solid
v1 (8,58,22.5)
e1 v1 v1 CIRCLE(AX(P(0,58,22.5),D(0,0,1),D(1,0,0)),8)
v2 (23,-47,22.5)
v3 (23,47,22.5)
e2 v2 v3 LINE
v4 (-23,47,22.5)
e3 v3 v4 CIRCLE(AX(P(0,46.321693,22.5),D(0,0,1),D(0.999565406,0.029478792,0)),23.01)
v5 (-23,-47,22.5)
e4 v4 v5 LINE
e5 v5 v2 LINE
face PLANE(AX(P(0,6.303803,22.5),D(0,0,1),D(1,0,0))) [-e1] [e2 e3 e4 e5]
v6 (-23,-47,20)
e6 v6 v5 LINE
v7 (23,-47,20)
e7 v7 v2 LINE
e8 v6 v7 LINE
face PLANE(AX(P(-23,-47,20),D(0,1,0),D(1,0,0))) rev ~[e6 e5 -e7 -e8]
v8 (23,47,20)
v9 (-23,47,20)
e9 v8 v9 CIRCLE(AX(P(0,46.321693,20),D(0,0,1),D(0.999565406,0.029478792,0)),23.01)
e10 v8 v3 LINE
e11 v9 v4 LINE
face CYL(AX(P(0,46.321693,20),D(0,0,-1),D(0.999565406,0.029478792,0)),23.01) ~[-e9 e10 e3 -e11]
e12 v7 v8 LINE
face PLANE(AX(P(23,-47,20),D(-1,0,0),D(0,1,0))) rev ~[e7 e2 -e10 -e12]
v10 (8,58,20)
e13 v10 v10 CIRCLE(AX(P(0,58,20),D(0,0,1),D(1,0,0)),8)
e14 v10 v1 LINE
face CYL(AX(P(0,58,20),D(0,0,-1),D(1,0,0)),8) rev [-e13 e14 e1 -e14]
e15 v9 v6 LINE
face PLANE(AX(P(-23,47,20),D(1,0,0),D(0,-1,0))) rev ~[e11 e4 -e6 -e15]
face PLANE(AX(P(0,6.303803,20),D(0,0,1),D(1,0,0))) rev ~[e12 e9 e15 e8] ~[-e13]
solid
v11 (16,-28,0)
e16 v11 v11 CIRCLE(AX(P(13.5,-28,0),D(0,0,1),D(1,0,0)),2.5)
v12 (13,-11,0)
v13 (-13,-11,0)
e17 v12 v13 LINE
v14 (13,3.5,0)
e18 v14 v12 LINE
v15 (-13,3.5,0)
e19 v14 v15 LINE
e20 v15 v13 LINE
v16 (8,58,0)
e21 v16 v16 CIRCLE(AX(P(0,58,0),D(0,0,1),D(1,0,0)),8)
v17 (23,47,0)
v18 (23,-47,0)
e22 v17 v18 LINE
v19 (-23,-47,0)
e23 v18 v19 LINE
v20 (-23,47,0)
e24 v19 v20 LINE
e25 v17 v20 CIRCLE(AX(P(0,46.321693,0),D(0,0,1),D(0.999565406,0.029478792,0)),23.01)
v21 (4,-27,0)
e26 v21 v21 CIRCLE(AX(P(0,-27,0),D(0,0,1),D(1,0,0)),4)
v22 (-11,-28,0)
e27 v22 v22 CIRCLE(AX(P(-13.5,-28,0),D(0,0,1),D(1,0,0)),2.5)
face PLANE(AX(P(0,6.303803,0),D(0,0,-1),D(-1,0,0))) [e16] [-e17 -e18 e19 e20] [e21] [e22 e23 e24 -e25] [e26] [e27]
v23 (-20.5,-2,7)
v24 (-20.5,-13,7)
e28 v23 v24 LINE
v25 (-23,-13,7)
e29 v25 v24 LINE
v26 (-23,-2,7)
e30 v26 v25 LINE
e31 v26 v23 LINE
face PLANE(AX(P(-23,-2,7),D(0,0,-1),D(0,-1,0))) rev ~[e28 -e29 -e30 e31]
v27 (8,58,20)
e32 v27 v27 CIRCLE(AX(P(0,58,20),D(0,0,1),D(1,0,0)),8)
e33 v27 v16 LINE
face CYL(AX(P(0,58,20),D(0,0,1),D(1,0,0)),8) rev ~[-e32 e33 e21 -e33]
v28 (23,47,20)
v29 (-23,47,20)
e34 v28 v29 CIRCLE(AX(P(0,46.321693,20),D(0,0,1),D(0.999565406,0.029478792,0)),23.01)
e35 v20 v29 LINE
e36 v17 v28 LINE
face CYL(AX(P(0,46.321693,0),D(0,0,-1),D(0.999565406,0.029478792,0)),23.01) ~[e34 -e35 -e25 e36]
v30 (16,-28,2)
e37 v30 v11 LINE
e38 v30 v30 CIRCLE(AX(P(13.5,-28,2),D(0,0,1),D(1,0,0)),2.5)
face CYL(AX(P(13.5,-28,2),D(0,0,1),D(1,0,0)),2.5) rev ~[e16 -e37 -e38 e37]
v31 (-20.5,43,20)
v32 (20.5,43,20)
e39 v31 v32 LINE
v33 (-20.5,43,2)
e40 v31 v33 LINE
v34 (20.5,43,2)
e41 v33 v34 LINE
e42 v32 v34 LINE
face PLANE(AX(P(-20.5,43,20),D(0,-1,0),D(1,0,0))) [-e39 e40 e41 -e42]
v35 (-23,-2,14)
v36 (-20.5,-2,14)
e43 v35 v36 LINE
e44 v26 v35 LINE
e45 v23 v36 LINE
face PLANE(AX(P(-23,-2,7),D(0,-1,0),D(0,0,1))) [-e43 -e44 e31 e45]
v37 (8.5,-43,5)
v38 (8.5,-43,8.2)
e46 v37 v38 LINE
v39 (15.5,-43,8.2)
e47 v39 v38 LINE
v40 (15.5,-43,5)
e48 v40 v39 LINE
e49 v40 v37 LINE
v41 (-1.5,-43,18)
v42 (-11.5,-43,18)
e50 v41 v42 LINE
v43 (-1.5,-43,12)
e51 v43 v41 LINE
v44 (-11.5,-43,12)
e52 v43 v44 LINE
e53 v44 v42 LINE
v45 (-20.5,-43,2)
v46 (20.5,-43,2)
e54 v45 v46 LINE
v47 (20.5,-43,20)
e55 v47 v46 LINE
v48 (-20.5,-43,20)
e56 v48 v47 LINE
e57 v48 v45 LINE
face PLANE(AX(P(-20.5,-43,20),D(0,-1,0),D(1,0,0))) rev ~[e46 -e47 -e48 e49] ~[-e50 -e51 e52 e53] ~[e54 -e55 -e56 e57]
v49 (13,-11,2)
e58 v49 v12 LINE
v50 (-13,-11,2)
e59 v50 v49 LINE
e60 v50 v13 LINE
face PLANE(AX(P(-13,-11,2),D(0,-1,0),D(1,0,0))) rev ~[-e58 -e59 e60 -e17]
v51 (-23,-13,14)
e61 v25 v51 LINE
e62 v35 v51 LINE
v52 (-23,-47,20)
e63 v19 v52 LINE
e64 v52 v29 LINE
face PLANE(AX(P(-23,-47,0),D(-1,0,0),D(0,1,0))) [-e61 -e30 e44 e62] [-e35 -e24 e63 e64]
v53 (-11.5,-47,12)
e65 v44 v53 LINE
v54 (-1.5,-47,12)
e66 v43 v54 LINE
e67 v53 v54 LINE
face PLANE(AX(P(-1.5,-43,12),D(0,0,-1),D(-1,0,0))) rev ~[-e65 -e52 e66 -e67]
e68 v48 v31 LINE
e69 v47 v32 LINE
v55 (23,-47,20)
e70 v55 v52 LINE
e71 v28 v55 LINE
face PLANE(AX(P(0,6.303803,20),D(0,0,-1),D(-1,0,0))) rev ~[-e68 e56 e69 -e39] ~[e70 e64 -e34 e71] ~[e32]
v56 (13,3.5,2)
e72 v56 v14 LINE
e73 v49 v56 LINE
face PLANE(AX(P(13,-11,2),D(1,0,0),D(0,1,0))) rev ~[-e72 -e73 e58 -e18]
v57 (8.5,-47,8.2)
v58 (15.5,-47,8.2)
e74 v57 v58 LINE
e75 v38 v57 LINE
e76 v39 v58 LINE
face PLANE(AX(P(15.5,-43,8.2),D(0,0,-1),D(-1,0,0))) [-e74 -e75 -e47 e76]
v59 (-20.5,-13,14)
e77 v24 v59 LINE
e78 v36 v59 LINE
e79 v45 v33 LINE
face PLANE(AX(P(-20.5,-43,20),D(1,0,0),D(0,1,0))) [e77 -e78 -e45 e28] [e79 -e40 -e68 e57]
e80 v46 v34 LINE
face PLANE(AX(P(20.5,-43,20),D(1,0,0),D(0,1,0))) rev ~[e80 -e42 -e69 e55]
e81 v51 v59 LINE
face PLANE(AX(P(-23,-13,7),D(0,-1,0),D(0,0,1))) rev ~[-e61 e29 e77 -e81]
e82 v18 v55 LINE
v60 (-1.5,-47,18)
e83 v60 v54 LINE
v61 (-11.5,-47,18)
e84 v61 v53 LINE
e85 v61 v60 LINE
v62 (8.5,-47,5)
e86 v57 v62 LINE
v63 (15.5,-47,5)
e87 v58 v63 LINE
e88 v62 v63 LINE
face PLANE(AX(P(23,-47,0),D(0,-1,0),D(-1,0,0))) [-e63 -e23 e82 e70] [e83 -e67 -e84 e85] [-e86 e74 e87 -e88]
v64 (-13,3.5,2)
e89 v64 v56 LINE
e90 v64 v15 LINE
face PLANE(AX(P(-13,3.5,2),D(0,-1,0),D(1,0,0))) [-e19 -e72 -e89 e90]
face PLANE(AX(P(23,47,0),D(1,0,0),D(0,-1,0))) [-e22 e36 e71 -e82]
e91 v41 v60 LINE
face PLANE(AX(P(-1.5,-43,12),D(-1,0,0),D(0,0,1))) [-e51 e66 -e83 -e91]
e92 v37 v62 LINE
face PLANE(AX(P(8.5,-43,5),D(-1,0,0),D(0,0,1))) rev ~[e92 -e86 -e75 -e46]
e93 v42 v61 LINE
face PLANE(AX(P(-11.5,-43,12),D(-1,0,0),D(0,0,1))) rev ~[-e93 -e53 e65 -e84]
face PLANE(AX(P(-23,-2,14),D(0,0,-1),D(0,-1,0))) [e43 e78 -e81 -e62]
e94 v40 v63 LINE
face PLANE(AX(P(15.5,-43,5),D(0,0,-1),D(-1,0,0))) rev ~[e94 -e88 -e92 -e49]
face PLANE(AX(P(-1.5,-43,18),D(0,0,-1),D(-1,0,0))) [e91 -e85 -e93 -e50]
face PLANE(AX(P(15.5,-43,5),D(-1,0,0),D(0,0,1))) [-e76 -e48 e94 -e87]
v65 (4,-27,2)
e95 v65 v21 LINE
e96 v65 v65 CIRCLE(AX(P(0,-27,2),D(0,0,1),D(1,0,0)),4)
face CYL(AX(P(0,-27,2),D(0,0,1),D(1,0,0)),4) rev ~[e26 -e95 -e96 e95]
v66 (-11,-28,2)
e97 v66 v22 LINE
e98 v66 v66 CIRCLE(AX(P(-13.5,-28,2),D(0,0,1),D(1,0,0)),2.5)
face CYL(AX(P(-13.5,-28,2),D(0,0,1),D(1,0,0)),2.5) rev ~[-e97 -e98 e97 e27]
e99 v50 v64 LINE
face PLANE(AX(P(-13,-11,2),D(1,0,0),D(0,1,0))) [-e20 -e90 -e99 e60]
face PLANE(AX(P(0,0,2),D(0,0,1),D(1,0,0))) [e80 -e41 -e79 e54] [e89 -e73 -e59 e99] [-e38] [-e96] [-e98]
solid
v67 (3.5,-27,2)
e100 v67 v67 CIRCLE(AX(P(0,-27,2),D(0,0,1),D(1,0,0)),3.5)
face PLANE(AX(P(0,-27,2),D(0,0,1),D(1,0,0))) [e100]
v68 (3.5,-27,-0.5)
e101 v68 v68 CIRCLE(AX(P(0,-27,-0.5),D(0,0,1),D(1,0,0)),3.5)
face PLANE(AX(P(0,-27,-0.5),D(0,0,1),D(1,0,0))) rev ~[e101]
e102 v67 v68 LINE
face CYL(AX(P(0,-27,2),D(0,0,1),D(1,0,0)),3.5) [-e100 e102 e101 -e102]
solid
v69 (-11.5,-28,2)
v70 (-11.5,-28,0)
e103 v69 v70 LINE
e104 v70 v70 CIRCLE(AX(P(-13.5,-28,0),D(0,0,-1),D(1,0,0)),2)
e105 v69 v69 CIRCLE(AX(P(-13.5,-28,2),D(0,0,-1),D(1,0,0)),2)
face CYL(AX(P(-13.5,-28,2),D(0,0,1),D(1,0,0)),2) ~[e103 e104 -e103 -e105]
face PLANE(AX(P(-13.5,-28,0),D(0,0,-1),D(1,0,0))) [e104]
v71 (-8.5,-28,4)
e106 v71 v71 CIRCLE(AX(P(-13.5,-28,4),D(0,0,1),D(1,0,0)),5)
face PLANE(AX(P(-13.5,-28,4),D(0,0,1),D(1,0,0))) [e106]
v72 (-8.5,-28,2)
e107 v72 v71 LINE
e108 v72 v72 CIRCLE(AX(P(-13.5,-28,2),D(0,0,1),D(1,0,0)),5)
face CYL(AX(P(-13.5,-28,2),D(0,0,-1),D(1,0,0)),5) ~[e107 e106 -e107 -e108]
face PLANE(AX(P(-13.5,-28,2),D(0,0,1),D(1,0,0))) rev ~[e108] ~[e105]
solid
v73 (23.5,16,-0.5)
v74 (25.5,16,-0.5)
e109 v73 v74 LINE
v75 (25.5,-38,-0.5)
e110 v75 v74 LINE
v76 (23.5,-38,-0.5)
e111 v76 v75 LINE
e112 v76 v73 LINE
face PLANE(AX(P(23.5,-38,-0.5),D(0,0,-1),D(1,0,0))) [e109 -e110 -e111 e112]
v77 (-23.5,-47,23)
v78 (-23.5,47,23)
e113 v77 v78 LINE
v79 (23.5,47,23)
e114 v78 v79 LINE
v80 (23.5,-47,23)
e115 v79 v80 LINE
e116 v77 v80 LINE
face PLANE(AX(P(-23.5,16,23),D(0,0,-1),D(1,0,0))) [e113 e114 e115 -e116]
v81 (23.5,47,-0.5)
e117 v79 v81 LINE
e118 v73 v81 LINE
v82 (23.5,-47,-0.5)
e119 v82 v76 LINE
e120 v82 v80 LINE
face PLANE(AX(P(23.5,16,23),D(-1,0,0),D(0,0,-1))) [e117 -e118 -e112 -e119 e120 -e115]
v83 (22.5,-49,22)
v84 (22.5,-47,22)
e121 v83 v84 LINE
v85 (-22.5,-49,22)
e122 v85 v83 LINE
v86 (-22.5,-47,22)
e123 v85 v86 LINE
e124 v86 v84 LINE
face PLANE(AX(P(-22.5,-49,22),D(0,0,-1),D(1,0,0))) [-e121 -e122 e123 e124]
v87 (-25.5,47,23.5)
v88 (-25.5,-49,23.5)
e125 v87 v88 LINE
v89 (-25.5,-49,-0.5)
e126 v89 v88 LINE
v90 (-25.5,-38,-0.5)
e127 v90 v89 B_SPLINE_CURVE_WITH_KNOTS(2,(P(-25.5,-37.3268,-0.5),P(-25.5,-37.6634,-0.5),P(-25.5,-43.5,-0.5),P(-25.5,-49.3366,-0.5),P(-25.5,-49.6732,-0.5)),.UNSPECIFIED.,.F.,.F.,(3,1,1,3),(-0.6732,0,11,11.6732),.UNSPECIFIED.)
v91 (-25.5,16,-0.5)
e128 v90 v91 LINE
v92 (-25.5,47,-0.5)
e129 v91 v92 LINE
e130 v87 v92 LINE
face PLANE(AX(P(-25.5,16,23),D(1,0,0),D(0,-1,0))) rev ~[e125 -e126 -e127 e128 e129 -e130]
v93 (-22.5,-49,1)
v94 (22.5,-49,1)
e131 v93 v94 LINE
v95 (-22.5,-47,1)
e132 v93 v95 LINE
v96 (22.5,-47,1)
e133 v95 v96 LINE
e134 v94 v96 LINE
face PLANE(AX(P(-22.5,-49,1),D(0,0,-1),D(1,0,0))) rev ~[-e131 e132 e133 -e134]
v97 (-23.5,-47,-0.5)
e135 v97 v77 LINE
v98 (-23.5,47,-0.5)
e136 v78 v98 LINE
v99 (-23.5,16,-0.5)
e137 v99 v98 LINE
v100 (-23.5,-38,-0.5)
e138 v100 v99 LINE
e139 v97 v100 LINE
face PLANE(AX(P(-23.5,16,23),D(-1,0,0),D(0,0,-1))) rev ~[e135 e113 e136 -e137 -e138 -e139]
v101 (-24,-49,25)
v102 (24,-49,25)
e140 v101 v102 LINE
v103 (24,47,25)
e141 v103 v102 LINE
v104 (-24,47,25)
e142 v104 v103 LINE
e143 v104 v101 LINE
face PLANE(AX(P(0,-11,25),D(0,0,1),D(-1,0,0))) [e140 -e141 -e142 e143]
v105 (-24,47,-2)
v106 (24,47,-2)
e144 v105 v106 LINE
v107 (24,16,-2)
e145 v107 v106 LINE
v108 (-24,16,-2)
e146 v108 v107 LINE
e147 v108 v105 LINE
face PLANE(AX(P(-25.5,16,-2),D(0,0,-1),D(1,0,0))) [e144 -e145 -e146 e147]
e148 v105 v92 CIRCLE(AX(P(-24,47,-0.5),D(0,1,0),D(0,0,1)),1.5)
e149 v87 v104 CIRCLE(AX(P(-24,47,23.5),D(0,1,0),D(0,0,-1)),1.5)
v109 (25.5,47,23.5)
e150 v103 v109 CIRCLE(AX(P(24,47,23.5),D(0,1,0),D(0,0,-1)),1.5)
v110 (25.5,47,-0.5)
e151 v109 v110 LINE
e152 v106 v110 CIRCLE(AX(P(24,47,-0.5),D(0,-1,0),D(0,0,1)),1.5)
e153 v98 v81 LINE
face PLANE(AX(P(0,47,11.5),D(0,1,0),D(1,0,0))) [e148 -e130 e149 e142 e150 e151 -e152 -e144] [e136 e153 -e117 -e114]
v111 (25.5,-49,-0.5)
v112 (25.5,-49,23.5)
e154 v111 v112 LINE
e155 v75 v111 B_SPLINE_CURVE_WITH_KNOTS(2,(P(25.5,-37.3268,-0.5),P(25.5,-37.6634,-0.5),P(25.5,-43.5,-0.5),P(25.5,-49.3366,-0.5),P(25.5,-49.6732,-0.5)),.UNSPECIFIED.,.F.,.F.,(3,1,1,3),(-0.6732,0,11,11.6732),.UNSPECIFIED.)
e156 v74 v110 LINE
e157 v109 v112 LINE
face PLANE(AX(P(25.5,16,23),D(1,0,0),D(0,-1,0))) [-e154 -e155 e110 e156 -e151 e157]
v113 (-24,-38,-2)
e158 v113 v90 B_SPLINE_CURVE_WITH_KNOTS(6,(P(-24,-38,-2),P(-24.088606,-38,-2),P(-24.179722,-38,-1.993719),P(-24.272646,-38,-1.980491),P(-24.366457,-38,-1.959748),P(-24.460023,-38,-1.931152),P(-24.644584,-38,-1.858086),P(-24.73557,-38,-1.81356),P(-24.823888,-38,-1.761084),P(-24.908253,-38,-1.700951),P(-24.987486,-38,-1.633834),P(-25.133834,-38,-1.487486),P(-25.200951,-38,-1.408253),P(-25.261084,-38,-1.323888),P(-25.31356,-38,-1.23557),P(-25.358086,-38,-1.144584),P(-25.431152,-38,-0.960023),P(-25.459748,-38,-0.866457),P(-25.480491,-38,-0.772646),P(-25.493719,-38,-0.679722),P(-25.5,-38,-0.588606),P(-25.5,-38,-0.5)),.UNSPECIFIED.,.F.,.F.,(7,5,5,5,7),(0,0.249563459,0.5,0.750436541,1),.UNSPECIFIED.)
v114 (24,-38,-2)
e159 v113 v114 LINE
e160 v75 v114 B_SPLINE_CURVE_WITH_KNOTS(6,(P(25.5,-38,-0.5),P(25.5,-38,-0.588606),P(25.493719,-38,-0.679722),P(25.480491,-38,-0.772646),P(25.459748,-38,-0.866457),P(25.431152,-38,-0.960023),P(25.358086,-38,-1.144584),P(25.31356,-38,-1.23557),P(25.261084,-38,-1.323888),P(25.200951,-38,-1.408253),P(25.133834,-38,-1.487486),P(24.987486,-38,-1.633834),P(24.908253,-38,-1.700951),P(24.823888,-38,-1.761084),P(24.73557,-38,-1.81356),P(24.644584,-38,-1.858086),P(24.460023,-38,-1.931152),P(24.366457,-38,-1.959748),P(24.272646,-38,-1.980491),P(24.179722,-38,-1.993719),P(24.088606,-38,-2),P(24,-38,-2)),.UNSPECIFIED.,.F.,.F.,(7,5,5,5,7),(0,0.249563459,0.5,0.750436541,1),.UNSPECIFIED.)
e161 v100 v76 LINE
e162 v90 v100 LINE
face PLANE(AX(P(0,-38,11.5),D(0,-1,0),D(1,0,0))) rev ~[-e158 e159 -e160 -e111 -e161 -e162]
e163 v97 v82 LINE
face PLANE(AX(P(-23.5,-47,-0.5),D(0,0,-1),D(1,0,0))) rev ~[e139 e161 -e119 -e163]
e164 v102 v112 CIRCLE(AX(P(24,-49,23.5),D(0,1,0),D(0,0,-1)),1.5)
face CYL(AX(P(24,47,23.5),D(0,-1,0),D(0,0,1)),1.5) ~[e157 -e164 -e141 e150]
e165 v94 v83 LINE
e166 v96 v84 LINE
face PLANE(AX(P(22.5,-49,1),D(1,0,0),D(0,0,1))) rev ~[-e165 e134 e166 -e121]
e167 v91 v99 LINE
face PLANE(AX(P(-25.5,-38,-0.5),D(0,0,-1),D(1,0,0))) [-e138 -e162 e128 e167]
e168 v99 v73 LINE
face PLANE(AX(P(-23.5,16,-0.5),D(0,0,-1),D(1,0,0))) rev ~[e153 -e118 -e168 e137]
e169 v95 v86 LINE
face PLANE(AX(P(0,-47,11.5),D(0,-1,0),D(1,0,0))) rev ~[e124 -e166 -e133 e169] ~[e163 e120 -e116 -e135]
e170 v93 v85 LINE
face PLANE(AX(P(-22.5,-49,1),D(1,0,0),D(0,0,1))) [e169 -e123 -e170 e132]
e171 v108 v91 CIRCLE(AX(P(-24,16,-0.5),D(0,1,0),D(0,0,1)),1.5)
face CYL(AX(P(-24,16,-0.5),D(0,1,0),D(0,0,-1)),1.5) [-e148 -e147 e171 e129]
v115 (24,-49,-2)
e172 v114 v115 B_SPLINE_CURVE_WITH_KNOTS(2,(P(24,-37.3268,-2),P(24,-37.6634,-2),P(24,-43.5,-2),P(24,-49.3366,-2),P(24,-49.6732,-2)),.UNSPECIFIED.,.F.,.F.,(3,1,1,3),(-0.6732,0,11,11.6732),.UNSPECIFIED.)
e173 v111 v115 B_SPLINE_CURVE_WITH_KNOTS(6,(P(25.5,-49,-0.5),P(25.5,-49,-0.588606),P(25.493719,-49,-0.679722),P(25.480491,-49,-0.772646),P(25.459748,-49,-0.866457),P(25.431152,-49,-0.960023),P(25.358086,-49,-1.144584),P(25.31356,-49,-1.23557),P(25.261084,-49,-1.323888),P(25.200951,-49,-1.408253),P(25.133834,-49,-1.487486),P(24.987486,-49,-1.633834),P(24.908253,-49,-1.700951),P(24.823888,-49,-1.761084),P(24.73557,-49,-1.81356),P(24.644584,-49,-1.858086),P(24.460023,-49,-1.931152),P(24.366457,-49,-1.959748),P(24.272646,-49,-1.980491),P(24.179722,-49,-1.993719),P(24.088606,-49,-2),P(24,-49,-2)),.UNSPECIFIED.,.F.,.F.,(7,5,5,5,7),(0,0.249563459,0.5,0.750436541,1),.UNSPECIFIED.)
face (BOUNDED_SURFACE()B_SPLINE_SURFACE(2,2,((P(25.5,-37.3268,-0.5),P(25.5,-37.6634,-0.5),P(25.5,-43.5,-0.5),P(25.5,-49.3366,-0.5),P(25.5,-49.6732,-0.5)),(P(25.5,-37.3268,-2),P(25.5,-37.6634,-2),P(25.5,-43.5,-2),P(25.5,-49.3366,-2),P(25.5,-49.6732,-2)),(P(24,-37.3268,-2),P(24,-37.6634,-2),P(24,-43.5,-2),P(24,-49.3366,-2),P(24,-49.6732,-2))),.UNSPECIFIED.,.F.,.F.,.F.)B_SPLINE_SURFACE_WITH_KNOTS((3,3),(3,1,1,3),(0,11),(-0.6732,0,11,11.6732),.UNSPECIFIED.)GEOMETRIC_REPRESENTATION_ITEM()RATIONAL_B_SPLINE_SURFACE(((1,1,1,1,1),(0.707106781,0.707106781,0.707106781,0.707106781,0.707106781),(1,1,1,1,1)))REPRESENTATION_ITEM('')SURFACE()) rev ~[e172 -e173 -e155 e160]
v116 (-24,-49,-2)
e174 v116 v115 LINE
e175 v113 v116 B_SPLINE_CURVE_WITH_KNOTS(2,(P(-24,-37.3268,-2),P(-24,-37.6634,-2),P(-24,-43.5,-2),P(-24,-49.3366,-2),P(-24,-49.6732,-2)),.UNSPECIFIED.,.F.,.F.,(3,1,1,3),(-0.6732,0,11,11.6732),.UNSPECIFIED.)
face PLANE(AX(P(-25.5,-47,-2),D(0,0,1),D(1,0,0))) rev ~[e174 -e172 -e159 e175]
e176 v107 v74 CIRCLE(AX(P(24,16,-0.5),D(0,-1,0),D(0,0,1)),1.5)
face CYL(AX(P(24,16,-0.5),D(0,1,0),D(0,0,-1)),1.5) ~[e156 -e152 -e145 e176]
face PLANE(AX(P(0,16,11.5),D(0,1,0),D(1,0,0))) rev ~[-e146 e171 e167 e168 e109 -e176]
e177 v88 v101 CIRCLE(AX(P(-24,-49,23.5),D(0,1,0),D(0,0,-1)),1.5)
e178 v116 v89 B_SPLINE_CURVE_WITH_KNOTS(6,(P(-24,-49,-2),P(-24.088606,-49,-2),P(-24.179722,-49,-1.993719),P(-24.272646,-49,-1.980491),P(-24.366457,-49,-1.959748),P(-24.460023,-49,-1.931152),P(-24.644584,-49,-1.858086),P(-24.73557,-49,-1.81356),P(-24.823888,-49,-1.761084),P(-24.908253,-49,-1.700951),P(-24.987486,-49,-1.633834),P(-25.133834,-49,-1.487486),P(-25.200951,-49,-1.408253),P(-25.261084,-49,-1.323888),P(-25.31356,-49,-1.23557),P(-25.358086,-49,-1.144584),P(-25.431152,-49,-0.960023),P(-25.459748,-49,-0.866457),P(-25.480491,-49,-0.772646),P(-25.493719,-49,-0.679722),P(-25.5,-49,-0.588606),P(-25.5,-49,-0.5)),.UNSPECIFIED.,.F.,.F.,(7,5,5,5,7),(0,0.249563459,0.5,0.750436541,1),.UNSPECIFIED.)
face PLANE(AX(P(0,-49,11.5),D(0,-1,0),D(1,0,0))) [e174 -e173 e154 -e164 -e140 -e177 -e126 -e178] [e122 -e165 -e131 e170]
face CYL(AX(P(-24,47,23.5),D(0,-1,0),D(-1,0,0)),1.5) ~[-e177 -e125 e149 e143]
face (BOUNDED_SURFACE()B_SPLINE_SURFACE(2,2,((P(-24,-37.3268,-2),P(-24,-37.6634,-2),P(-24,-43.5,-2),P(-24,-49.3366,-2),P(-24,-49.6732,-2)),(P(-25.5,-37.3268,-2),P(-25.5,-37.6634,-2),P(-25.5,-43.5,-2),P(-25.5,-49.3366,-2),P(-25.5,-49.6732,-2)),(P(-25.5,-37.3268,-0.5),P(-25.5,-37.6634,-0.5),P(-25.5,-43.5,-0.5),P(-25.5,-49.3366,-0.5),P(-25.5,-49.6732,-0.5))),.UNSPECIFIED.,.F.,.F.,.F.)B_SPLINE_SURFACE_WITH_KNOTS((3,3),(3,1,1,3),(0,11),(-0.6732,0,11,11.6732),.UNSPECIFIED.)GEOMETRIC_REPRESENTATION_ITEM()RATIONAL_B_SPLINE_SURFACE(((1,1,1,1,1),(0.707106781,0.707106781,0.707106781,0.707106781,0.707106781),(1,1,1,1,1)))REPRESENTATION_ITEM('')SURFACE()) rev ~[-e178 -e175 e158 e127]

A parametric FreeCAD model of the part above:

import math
import FreeCAD as App
import Part
import Sketcher
Q = App.Units.Quantity


def edges_at(feature, points):
    """Names of the edges that pass closest to the given points."""
    edges = feature.Shape.Edges
    near = lambda p: min(range(len(edges)), key=lambda i: edges[i].distToShape(Part.Vertex(*p))[0])
    return sorted({f"Edge{near(p) + 1}" for p in points})


def add_polygon(sketch, points):
    """Adds a closed chain of lines whose ends are joined by coincident constraints."""
    first, n = sketch.GeometryCount, len(points)
    for a, b in zip(points, points[1:] + points[:1]):
        sketch.addGeometry(Part.LineSegment(App.Vector(*a, 0), App.Vector(*b, 0)), False)
    for i in range(n):
        sketch.addConstraint(Sketcher.Constraint("Coincident", first + i, 2, first + (i + 1) % n, 1))

doc = App.newDocument("Part")
body = doc.addObject("PartDesign::Body", "Body")

# Sketch on XY plane
sketch1 = doc.addObject("Sketcher::SketchObject", "Sketch")
body.addObject(sketch1)
sketch1.AttachmentSupport = (doc.XY_Plane, [""])
sketch1.MapMode = "FlatFace"
sketch1.addGeometry([
    Part.LineSegment(App.Vector(23, -47, 0), App.Vector(23, 47, 0)),
    Part.ArcOfCircle(Part.Circle(App.Vector(0, 46, 0), App.Vector(0, 0, 1), 23), math.radians(2), math.radians(178)),
    Part.LineSegment(App.Vector(-23, 47, 0), App.Vector(-23, -47, 0)),
    Part.LineSegment(App.Vector(-23, -47, 0), App.Vector(23, -47, 0)),
], False)
sketch1.addConstraint([
    Sketcher.Constraint("Coincident", 0, 2, 1, 1),
    Sketcher.Constraint("Coincident", 1, 2, 2, 1),
    Sketcher.Constraint("Coincident", 2, 2, 3, 1),
    Sketcher.Constraint("Coincident", 3, 2, 0, 1),
    Sketcher.Constraint("Vertical", 0),
    Sketcher.Constraint("Vertical", 2),
    Sketcher.Constraint("Horizontal", 3),
    Sketcher.Constraint("Symmetric", 0, 2, 2, 2, -1, 1),
    Sketcher.Constraint("PointOnObject", 1, 3, -2),
    Sketcher.Constraint("DistanceX", 3, 1, 3, 2, Q("46 mm")),
    Sketcher.Constraint("DistanceY", 0, 1, 0, 2, Q("94 mm")),
    Sketcher.Constraint("Radius", 1, Q("23.01 mm")),
])
pad1 = doc.addObject("PartDesign::Pad", "Pad")
body.addObject(pad1)
pad1.Profile = sketch1
pad1.Length = 20

# Sketch on XY plane
sketch2 = doc.addObject("Sketcher::SketchObject", "Sketch001")
body.addObject(sketch2)
sketch2.AttachmentSupport = (doc.XY_Plane, [""])
sketch2.MapMode = "FlatFace"
sketch2.AttachmentOffset = App.Placement(App.Vector(0, 0, 20), App.Rotation())
sketch2.addGeometry(Part.Circle(App.Vector(0, 58, 0), App.Vector(0, 0, 1), 8), False)
sketch2.addConstraint([
    Sketcher.Constraint("PointOnObject", 0, 3, -2),
    Sketcher.Constraint("Diameter", 0, Q("16 mm")),
    Sketcher.Constraint("DistanceY", -1, 1, 0, 3, Q("58 mm")),
])
pocket1 = doc.addObject("PartDesign::Pocket", "Pocket")
body.addObject(pocket1)
pocket1.Profile = sketch2
pocket1.Type = "ThroughAll"

# Sketch on XY plane
sketch3 = doc.addObject("Sketcher::SketchObject", "Sketch002")
body.addObject(sketch3)
sketch3.AttachmentSupport = (doc.XY_Plane, [""])
sketch3.MapMode = "FlatFace"
sketch3.AttachmentOffset = App.Placement(App.Vector(0, 0, 20), App.Rotation())
add_polygon(sketch3, [(-20, 43), (-20, -43), (20, -43), (20, 43)])  # lines 0-3
sketch3.addConstraint([
    Sketcher.Constraint("Vertical", 0),
    Sketcher.Constraint("Horizontal", 1),
    Sketcher.Constraint("Vertical", 2),
    Sketcher.Constraint("Horizontal", 3),
    Sketcher.Constraint("Symmetric", 0, 2, 2, 2, -1, 1),
    Sketcher.Constraint("DistanceX", 1, 1, 1, 2, Q("41 mm")),
    Sketcher.Constraint("DistanceY", 0, 2, 0, 1, Q("86 mm")),
])
pocket2 = doc.addObject("PartDesign::Pocket", "Pocket001")
body.addObject(pocket2)
pocket2.Profile = sketch3
pocket2.Length = 18

# Sketch on XY plane
sketch4 = doc.addObject("Sketcher::SketchObject", "Sketch003")
body.addObject(sketch4)
sketch4.AttachmentSupport = (doc.XY_Plane, [""])
sketch4.MapMode = "FlatFace"
sketch4.AttachmentOffset = App.Placement(App.Vector(0, 0, 2), App.Rotation())
add_polygon(sketch4, [(-13, 4), (-13, -11), (13, -11), (13, 4)])  # lines 0-3
sketch4.addConstraint([
    Sketcher.Constraint("Vertical", 0),
    Sketcher.Constraint("Horizontal", 1),
    Sketcher.Constraint("Vertical", 2),
    Sketcher.Constraint("Horizontal", 3),
    Sketcher.Constraint("DistanceX", 1, 1, 1, 2, Q("26 mm")),
    Sketcher.Constraint("DistanceY", 0, 2, 0, 1, Q("14.5 mm")),
    Sketcher.Constraint("DistanceX", 0, 2, -1, 1, Q("13 mm")),
    Sketcher.Constraint("DistanceY", 0, 2, -1, 1, Q("11 mm")),
])
pocket3 = doc.addObject("PartDesign::Pocket", "Pocket002")
body.addObject(pocket3)
pocket3.Profile = sketch4
pocket3.Length = 5

# Sketch on XY plane
sketch5 = doc.addObject("Sketcher::SketchObject", "Sketch004")
body.addObject(sketch5)
sketch5.AttachmentSupport = (doc.XY_Plane, [""])
sketch5.MapMode = "FlatFace"
sketch5.AttachmentOffset = App.Placement(App.Vector(0, 0, 2), App.Rotation())
sketch5.addGeometry(Part.Circle(App.Vector(0, -27, 0), App.Vector(0, 0, 1), 4), False)
sketch5.addConstraint([
    Sketcher.Constraint("PointOnObject", 0, 3, -2),
    Sketcher.Constraint("Diameter", 0, Q("8 mm")),
    Sketcher.Constraint("DistanceY", 0, 3, -1, 1, Q("27 mm")),
])
pocket4 = doc.addObject("PartDesign::Pocket", "Pocket003")
body.addObject(pocket4)
pocket4.Profile = sketch5
pocket4.Length = 5

# Sketch on XZ plane
sketch6 = doc.addObject("Sketcher::SketchObject", "Sketch005")
body.addObject(sketch6)
sketch6.AttachmentSupport = (doc.XZ_Plane, [""])
sketch6.MapMode = "FlatFace"
sketch6.AttachmentOffset = App.Placement(App.Vector(0, 0, 43), App.Rotation())
add_polygon(sketch6, [(15.5, 8.2), (15.5, 5), (8.5, 5), (8.5, 8.2)])  # lines 0-3
sketch6.addConstraint([
    Sketcher.Constraint("Vertical", 0),
    Sketcher.Constraint("Horizontal", 1),
    Sketcher.Constraint("Vertical", 2),
    Sketcher.Constraint("Horizontal", 3),
    Sketcher.Constraint("DistanceX", 1, 2, 1, 1, Q("7 mm")),
    Sketcher.Constraint("DistanceY", 0, 2, 0, 1, Q("3.2 mm")),
    Sketcher.Constraint("DistanceY", -1, 1, 0, 2, Q("5 mm")),
    Sketcher.Constraint("DistanceX", -1, 1, 0, 2, Q("15.5 mm")),
])
pocket5 = doc.addObject("PartDesign::Pocket", "Pocket004")
body.addObject(pocket5)
pocket5.Profile = sketch6
pocket5.Type = "ThroughAll"
pocket5.Reversed = True

# Sketch on XZ plane
sketch7 = doc.addObject("Sketcher::SketchObject", "Sketch006")
body.addObject(sketch7)
sketch7.AttachmentSupport = (doc.XZ_Plane, [""])
sketch7.MapMode = "FlatFace"
sketch7.AttachmentOffset = App.Placement(App.Vector(0, 0, 43), App.Rotation())
add_polygon(sketch7, [(-2, 18), (-2, 12), (-12, 12), (-12, 18)])  # lines 0-3
sketch7.addConstraint([
    Sketcher.Constraint("Vertical", 0),
    Sketcher.Constraint("Horizontal", 1),
    Sketcher.Constraint("Vertical", 2),
    Sketcher.Constraint("Horizontal", 3),
    Sketcher.Constraint("DistanceX", 1, 2, 1, 1, Q("10 mm")),
    Sketcher.Constraint("DistanceY", 0, 2, 0, 1, Q("6 mm")),
    Sketcher.Constraint("DistanceY", -1, 1, 0, 2, Q("12 mm")),
    Sketcher.Constraint("DistanceX", 0, 2, -1, 1, Q("1.5 mm")),
])
pocket6 = doc.addObject("PartDesign::Pocket", "Pocket005")
body.addObject(pocket6)
pocket6.Profile = sketch7
pocket6.Type = "ThroughAll"
pocket6.Reversed = True

# Sketch on XY plane
sketch8 = doc.addObject("Sketcher::SketchObject", "Sketch007")
body.addObject(sketch8)
sketch8.AttachmentSupport = (doc.XY_Plane, [""])
sketch8.MapMode = "FlatFace"
sketch8.AttachmentOffset = App.Placement(App.Vector(0, 0, 2), App.Rotation())
sketch8.addGeometry(Part.Circle(App.Vector(-13.5, -28, 0), App.Vector(0, 0, 1), 2.5), False)
sketch8.addConstraint([
    Sketcher.Constraint("Diameter", 0, Q("5 mm")),
    Sketcher.Constraint("DistanceY", 0, 3, -1, 1, Q("28 mm")),
    Sketcher.Constraint("DistanceX", 0, 3, -1, 1, Q("13.5 mm")),
])
pocket7 = doc.addObject("PartDesign::Pocket", "Pocket006")
body.addObject(pocket7)
pocket7.Profile = sketch8
pocket7.Type = "ThroughAll"

# Sketch on XY plane
sketch9 = doc.addObject("Sketcher::SketchObject", "Sketch008")
body.addObject(sketch9)
sketch9.AttachmentSupport = (doc.XY_Plane, [""])
sketch9.MapMode = "FlatFace"
sketch9.AttachmentOffset = App.Placement(App.Vector(0, 0, 2), App.Rotation())
sketch9.addGeometry(Part.Circle(App.Vector(13.5, -28, 0), App.Vector(0, 0, 1), 2.5), False)
sketch9.addConstraint([
    Sketcher.Constraint("Diameter", 0, Q("5 mm")),
    Sketcher.Constraint("DistanceY", 0, 3, -1, 1, Q("28 mm")),
    Sketcher.Constraint("DistanceX", -1, 1, 0, 3, Q("13.5 mm")),
])
pocket8 = doc.addObject("PartDesign::Pocket", "Pocket007")
body.addObject(pocket8)
pocket8.Profile = sketch9
pocket8.Type = "ThroughAll"

# Sketch on YZ plane
sketch10 = doc.addObject("Sketcher::SketchObject", "Sketch009")
body.addObject(sketch10)
sketch10.AttachmentSupport = (doc.YZ_Plane, [""])
sketch10.MapMode = "FlatFace"
sketch10.AttachmentOffset = App.Placement(App.Vector(0, 0, -23), App.Rotation())
add_polygon(sketch10, [(-2, 14), (-2, 7), (-13, 7), (-13, 14)])  # lines 0-3
sketch10.addConstraint([
    Sketcher.Constraint("Vertical", 0),
    Sketcher.Constraint("Horizontal", 1),
    Sketcher.Constraint("Vertical", 2),
    Sketcher.Constraint("Horizontal", 3),
    Sketcher.Constraint("DistanceX", 1, 2, 1, 1, Q("11 mm")),
    Sketcher.Constraint("DistanceY", 0, 2, 0, 1, Q("7 mm")),
    Sketcher.Constraint("DistanceX", 0, 2, -1, 1, Q("2 mm")),
    Sketcher.Constraint("DistanceY", -1, 1, 0, 2, Q("7 mm")),
])
pocket9 = doc.addObject("PartDesign::Pocket", "Pocket008")
body.addObject(pocket9)
pocket9.Profile = sketch10
pocket9.Length = 2.5
pocket9.Reversed = True
body2 = doc.addObject("PartDesign::Body", "Body001")

# Sketch on XY plane
sketch11 = doc.addObject("Sketcher::SketchObject", "Sketch010")
body2.addObject(sketch11)
sketch11.AttachmentSupport = (doc.getObject("XY_Plane001"), [""])
sketch11.MapMode = "FlatFace"
sketch11.AttachmentOffset = App.Placement(App.Vector(0, 0, 2), App.Rotation())
sketch11.addGeometry(Part.Circle(App.Vector(-14, -28, 0), App.Vector(0, 0, 1), 5), False)
sketch11.addConstraint([
    Sketcher.Constraint("Diameter", 0, Q("10 mm")),
    Sketcher.Constraint("DistanceY", 0, 3, -1, 1, Q("28 mm")),
    Sketcher.Constraint("DistanceX", 0, 3, -1, 1, Q("13.5 mm")),
])
pad2 = doc.addObject("PartDesign::Pad", "Pad001")
body2.addObject(pad2)
pad2.Profile = sketch11
pad2.Length = 2

# Sketch on XY plane
sketch12 = doc.addObject("Sketcher::SketchObject", "Sketch011")
body2.addObject(sketch12)
sketch12.AttachmentSupport = (doc.getObject("XY_Plane001"), [""])
sketch12.MapMode = "FlatFace"
sketch12.AttachmentOffset = App.Placement(App.Vector(0, 0, 2), App.Rotation())
sketch12.addGeometry(Part.Circle(App.Vector(-13.5, -28, 0), App.Vector(0, 0, 1), 2), False)
sketch12.addConstraint([
    Sketcher.Constraint("Diameter", 0, Q("4 mm")),
    Sketcher.Constraint("DistanceY", 0, 3, -1, 1, Q("28 mm")),
    Sketcher.Constraint("DistanceX", 0, 3, -1, 1, Q("13.5 mm")),
])
pad3 = doc.addObject("PartDesign::Pad", "Pad002")
body2.addObject(pad3)
pad3.Profile = sketch12
pad3.Length = 2
pad3.Reversed = True
body3 = doc.addObject("PartDesign::Body", "Body002")

# Sketch on XY plane
sketch13 = doc.addObject("Sketcher::SketchObject", "Sketch012")
body3.addObject(sketch13)
sketch13.AttachmentSupport = (doc.getObject("XY_Plane002"), [""])
sketch13.MapMode = "FlatFace"
sketch13.AttachmentOffset = App.Placement(App.Vector(0, 0, 2), App.Rotation())
sketch13.addGeometry(Part.Circle(App.Vector(0, -27, 0), App.Vector(0, 0, 1), 3.5), False)
sketch13.addConstraint([
    Sketcher.Constraint("PointOnObject", 0, 3, -2),
    Sketcher.Constraint("Diameter", 0, Q("7 mm")),
    Sketcher.Constraint("DistanceY", 0, 3, -1, 1, Q("27 mm")),
])
pad4 = doc.addObject("PartDesign::Pad", "Pad003")
body3.addObject(pad4)
pad4.Profile = sketch13
pad4.Length = 2.5
pad4.Reversed = True
body4 = doc.addObject("PartDesign::Body", "Body003")

# Sketch on XY plane
sketch14 = doc.addObject("Sketcher::SketchObject", "Sketch013")
body4.addObject(sketch14)
sketch14.AttachmentSupport = (doc.getObject("XY_Plane003"), [""])
sketch14.MapMode = "FlatFace"
sketch14.AttachmentOffset = App.Placement(App.Vector(0, 0, 20), App.Rotation())
sketch14.addGeometry([
    Part.LineSegment(App.Vector(-23, 47, 0), App.Vector(-23, -47, 0)),  # 0
    Part.LineSegment(App.Vector(-23, -47, 0), App.Vector(23, -47, 0)),  # 1
    Part.LineSegment(App.Vector(23, -47, 0), App.Vector(23, 47, 0)),  # 2
    Part.ArcOfCircle(Part.Circle(App.Vector(0, 46, 0), App.Vector(0, 0, 1), 23), math.radians(2), math.radians(178)),  # 3
    Part.Circle(App.Vector(0, 58, 0), App.Vector(0, 0, 1), 8),  # 4
], False)
sketch14.addConstraint([
    Sketcher.Constraint("Coincident", 0, 2, 1, 1),
    Sketcher.Constraint("Coincident", 1, 2, 2, 1),
    Sketcher.Constraint("Coincident", 2, 2, 3, 1),
    Sketcher.Constraint("Coincident", 3, 2, 0, 1),
    Sketcher.Constraint("Vertical", 0),
    Sketcher.Constraint("Horizontal", 1),
    Sketcher.Constraint("Vertical", 2),
    Sketcher.Constraint("Symmetric", 0, 2, 2, 2, -1, 1),
    Sketcher.Constraint("PointOnObject", 3, 3, -2),
    Sketcher.Constraint("PointOnObject", 4, 3, -2),
    Sketcher.Constraint("Diameter", 4, Q("16 mm")),
    Sketcher.Constraint("DistanceX", 1, 1, 1, 2, Q("46 mm")),
    Sketcher.Constraint("DistanceY", 0, 2, 0, 1, Q("94 mm")),
    Sketcher.Constraint("Radius", 3, Q("23.01 mm")),
    Sketcher.Constraint("DistanceY", -1, 1, 4, 3, Q("58 mm")),
])
pad5 = doc.addObject("PartDesign::Pad", "Pad004")
body4.addObject(pad5)
pad5.Profile = sketch14
pad5.Length = 2.5
body5 = doc.addObject("PartDesign::Body", "Body004")

# Sketch on XZ plane
sketch15 = doc.addObject("Sketcher::SketchObject", "Sketch014")
body5.addObject(sketch15)
sketch15.AttachmentSupport = (doc.getObject("XZ_Plane004"), [""])
sketch15.MapMode = "FlatFace"
sketch15.AttachmentOffset = App.Placement(App.Vector(0, 0, 47), App.Rotation())
add_polygon(sketch15, [(-26, 25), (-26, -2), (26, -2), (26, 25)])  # lines 0-3
add_polygon(sketch15, [(24, 0), (-24, 0), (-24, 23), (24, 23)])  # lines 4-7
sketch15.addConstraint([
    Sketcher.Constraint("Vertical", 0),
    Sketcher.Constraint("Horizontal", 1),
    Sketcher.Constraint("Vertical", 2),
    Sketcher.Constraint("Horizontal", 3),
    Sketcher.Constraint("Horizontal", 4),
    Sketcher.Constraint("Vertical", 5),
    Sketcher.Constraint("Horizontal", 6),
    Sketcher.Constraint("Vertical", 7),
    Sketcher.Constraint("DistanceX", 1, 1, 1, 2, Q("51 mm")),
    Sketcher.Constraint("DistanceX", 4, 2, 4, 1, Q("47 mm")),
    Sketcher.Constraint("DistanceY", 0, 2, 0, 1, Q("27 mm")),
    Sketcher.Constraint("DistanceY", 5, 1, 5, 2, Q("23.5 mm")),
    Sketcher.Constraint("DistanceY", 0, 2, -1, 1, Q("2 mm")),
    Sketcher.Constraint("DistanceY", -1, 1, 5, 2, Q("23 mm")),
    Sketcher.Constraint("DistanceX", 0, 2, 4, 2, Q("2 mm")),
    Sketcher.Constraint("DistanceX", 0, 2, -1, 1, Q("25.5 mm")),
])
pad6 = doc.addObject("PartDesign::Pad", "Pad005")
body5.addObject(pad6)
pad6.Profile = sketch15
pad6.Length = 9
pad6.Reversed = True

# Sketch on XZ plane
sketch16 = doc.addObject("Sketcher::SketchObject", "Sketch015")
body5.addObject(sketch16)
sketch16.AttachmentSupport = (doc.getObject("XZ_Plane004"), [""])
sketch16.MapMode = "FlatFace"
sketch16.AttachmentOffset = App.Placement(App.Vector(0, 0, 47), App.Rotation())
add_polygon(sketch16, [(-26, 25), (-26, -2), (26, -2), (26, 25)])  # lines 0-3
sketch16.addConstraint([
    Sketcher.Constraint("Vertical", 0),
    Sketcher.Constraint("Horizontal", 1),
    Sketcher.Constraint("Vertical", 2),
    Sketcher.Constraint("Horizontal", 3),
    Sketcher.Constraint("DistanceX", 1, 1, 1, 2, Q("51 mm")),
    Sketcher.Constraint("DistanceY", 0, 2, 0, 1, Q("27 mm")),
    Sketcher.Constraint("DistanceY", 0, 2, -1, 1, Q("2 mm")),
    Sketcher.Constraint("DistanceX", 0, 2, -1, 1, Q("25.5 mm")),
])
pad7 = doc.addObject("PartDesign::Pad", "Pad006")
body5.addObject(pad7)
pad7.Profile = sketch16
pad7.Length = 2

# Sketch on XZ plane
sketch17 = doc.addObject("Sketcher::SketchObject", "Sketch016")
body5.addObject(sketch17)
sketch17.AttachmentSupport = (doc.getObject("XZ_Plane004"), [""])
sketch17.MapMode = "FlatFace"
sketch17.AttachmentOffset = App.Placement(App.Vector(0, 0, 38), App.Rotation())
add_polygon(sketch17, [(23.5, -0.5), (23.5, 23), (25.5, 23), (25.5, -0.5)])  # lines 0-3
add_polygon(sketch17, [(-25.5, -0.5), (-25.5, 23), (-23.5, 23), (-23.5, -0.5)])  # lines 4-7
sketch17.addConstraint([
    Sketcher.Constraint("Vertical", 0),
    Sketcher.Constraint("Horizontal", 1),
    Sketcher.Constraint("Vertical", 2),
    Sketcher.Constraint("Horizontal", 3),
    Sketcher.Constraint("Vertical", 4),
    Sketcher.Constraint("Horizontal", 5),
    Sketcher.Constraint("Vertical", 6),
    Sketcher.Constraint("Horizontal", 7),
    Sketcher.Constraint("Symmetric", 1, 2, 4, 2, -2),
    Sketcher.Constraint("Symmetric", 3, 2, 6, 2, -2),
    Sketcher.Constraint("DistanceX", 1, 1, 1, 2, Q("2 mm")),
    Sketcher.Constraint("DistanceY", 0, 1, 0, 2, Q("23.5 mm")),
    Sketcher.Constraint("DistanceY", -1, 1, 0, 2, Q("23 mm")),
    Sketcher.Constraint("DistanceX", 4, 2, 0, 2, Q("49 mm")),
])
pad8 = doc.addObject("PartDesign::Pad", "Pad007")
body5.addObject(pad8)
pad8.Profile = sketch17
pad8.Length = 54
pad8.Reversed = True

# Sketch on XZ plane
sketch18 = doc.addObject("Sketcher::SketchObject", "Sketch017")
body5.addObject(sketch18)
sketch18.AttachmentSupport = (doc.getObject("XZ_Plane004"), [""])
sketch18.MapMode = "FlatFace"
sketch18.AttachmentOffset = App.Placement(App.Vector(0, 0, -16), App.Rotation())
add_polygon(sketch18, [(-26, -2), (-26, 25), (26, 25), (26, -2)])  # lines 0-3
add_polygon(sketch18, [(24, 23), (-24, 23), (-24, 0), (24, 0)])  # lines 4-7
sketch18.addConstraint([
    Sketcher.Constraint("Vertical", 0),
    Sketcher.Constraint("Horizontal", 1),
    Sketcher.Constraint("Vertical", 2),
    Sketcher.Constraint("Horizontal", 3),
    Sketcher.Constraint("Horizontal", 4),
    Sketcher.Constraint("Vertical", 5),
    Sketcher.Constraint("Horizontal", 6),
    Sketcher.Constraint("Vertical", 7),
    Sketcher.Constraint("DistanceX", 1, 1, 1, 2, Q("51 mm")),
    Sketcher.Constraint("DistanceX", 4, 2, 4, 1, Q("47 mm")),
    Sketcher.Constraint("DistanceY", 0, 1, 0, 2, Q("27 mm")),
    Sketcher.Constraint("DistanceY", 5, 2, 5, 1, Q("23.5 mm")),
    Sketcher.Constraint("DistanceY", -1, 1, 0, 2, Q("25 mm")),
    Sketcher.Constraint("DistanceY", -1, 1, 4, 2, Q("23 mm")),
    Sketcher.Constraint("DistanceX", 0, 2, 4, 2, Q("2 mm")),
    Sketcher.Constraint("DistanceX", 0, 2, -1, 1, Q("25.5 mm")),
])
pad9 = doc.addObject("PartDesign::Pad", "Pad008")
body5.addObject(pad9)
pad9.Profile = sketch18
pad9.Length = 31
pad9.Reversed = True

# Sketch on XY plane
sketch19 = doc.addObject("Sketcher::SketchObject", "Sketch018")
body5.addObject(sketch19)
sketch19.AttachmentSupport = (doc.getObject("XY_Plane004"), [""])
sketch19.MapMode = "FlatFace"
sketch19.AttachmentOffset = App.Placement(App.Vector(0, 0, 23), App.Rotation())
add_polygon(sketch19, [(26, -38), (26, 16), (-26, 16), (-26, -38)])  # lines 0-3
sketch19.addConstraint([
    Sketcher.Constraint("Vertical", 0),
    Sketcher.Constraint("Horizontal", 1),
    Sketcher.Constraint("Vertical", 2),
    Sketcher.Constraint("Horizontal", 3),
    Sketcher.Constraint("DistanceX", 1, 2, 1, 1, Q("51 mm")),
    Sketcher.Constraint("DistanceY", 0, 1, 0, 2, Q("54 mm")),
    Sketcher.Constraint("DistanceY", -1, 1, 0, 2, Q("16 mm")),
    Sketcher.Constraint("DistanceX", -1, 1, 0, 2, Q("25.5 mm")),
])
pad10 = doc.addObject("PartDesign::Pad", "Pad009")
body5.addObject(pad10)
pad10.Profile = sketch19
pad10.Length = 2

# Sketch on XZ plane
sketch20 = doc.addObject("Sketcher::SketchObject", "Sketch019")
body5.addObject(sketch20)
sketch20.AttachmentSupport = (doc.getObject("XZ_Plane004"), [""])
sketch20.MapMode = "FlatFace"
sketch20.AttachmentOffset = App.Placement(App.Vector(0, 0, 49), App.Rotation())
add_polygon(sketch20, [(-22, 22), (-22, 1), (22, 1), (22, 22)])  # lines 0-3
sketch20.addConstraint([
    Sketcher.Constraint("Vertical", 0),
    Sketcher.Constraint("Horizontal", 1),
    Sketcher.Constraint("Vertical", 2),
    Sketcher.Constraint("Horizontal", 3),
    Sketcher.Constraint("DistanceX", 1, 1, 1, 2, Q("45 mm")),
    Sketcher.Constraint("DistanceY", 0, 2, 0, 1, Q("21 mm")),
    Sketcher.Constraint("DistanceY", -1, 1, 0, 2, Q("1 mm")),
    Sketcher.Constraint("DistanceX", 0, 2, -1, 1, Q("22.5 mm")),
])
pocket10 = doc.addObject("PartDesign::Pocket", "Pocket009")
body5.addObject(pocket10)
pocket10.Profile = sketch20
pocket10.Length = 5
doc.recompute()

fillet = doc.addObject("PartDesign::Fillet", "Fillet")
body5.addObject(fillet)
fillet.Base = (pocket10, edges_at(pocket10, [(-25.5, 31.5, -2)]))
fillet.Radius = 1.5
doc.recompute()

fillet2 = doc.addObject("PartDesign::Fillet", "Fillet001")
body5.addObject(fillet2)
fillet2.Base = (fillet, edges_at(fillet, [(25.5, 31.5, -2)]))
fillet2.Radius = 1.5
doc.recompute()

fillet3 = doc.addObject("PartDesign::Fillet", "Fillet002")
body5.addObject(fillet3)
fillet3.Base = (fillet2, edges_at(fillet2, [(-25.5, -1, 25)]))
fillet3.Radius = 1.5
doc.recompute()

fillet4 = doc.addObject("PartDesign::Fillet", "Fillet003")
body5.addObject(fillet4)
fillet4.Base = (fillet3, edges_at(fillet3, [(25.5, -1, 25)]))
fillet4.Radius = 1.5
doc.recompute()

fillet5 = doc.addObject("PartDesign::Fillet", "Fillet004")
body5.addObject(fillet5)
fillet5.Base = (fillet4, edges_at(fillet4, [(25.5, -43.5, -2)]))
fillet5.Radius = 1.5
doc.recompute()

fillet6 = doc.addObject("PartDesign::Fillet", "Fillet005")
body5.addObject(fillet6)
fillet6.Base = (fillet5, edges_at(fillet5, [(-25.5, -43.5, -2)]))
fillet6.Radius = 1.5

doc.recompute()
